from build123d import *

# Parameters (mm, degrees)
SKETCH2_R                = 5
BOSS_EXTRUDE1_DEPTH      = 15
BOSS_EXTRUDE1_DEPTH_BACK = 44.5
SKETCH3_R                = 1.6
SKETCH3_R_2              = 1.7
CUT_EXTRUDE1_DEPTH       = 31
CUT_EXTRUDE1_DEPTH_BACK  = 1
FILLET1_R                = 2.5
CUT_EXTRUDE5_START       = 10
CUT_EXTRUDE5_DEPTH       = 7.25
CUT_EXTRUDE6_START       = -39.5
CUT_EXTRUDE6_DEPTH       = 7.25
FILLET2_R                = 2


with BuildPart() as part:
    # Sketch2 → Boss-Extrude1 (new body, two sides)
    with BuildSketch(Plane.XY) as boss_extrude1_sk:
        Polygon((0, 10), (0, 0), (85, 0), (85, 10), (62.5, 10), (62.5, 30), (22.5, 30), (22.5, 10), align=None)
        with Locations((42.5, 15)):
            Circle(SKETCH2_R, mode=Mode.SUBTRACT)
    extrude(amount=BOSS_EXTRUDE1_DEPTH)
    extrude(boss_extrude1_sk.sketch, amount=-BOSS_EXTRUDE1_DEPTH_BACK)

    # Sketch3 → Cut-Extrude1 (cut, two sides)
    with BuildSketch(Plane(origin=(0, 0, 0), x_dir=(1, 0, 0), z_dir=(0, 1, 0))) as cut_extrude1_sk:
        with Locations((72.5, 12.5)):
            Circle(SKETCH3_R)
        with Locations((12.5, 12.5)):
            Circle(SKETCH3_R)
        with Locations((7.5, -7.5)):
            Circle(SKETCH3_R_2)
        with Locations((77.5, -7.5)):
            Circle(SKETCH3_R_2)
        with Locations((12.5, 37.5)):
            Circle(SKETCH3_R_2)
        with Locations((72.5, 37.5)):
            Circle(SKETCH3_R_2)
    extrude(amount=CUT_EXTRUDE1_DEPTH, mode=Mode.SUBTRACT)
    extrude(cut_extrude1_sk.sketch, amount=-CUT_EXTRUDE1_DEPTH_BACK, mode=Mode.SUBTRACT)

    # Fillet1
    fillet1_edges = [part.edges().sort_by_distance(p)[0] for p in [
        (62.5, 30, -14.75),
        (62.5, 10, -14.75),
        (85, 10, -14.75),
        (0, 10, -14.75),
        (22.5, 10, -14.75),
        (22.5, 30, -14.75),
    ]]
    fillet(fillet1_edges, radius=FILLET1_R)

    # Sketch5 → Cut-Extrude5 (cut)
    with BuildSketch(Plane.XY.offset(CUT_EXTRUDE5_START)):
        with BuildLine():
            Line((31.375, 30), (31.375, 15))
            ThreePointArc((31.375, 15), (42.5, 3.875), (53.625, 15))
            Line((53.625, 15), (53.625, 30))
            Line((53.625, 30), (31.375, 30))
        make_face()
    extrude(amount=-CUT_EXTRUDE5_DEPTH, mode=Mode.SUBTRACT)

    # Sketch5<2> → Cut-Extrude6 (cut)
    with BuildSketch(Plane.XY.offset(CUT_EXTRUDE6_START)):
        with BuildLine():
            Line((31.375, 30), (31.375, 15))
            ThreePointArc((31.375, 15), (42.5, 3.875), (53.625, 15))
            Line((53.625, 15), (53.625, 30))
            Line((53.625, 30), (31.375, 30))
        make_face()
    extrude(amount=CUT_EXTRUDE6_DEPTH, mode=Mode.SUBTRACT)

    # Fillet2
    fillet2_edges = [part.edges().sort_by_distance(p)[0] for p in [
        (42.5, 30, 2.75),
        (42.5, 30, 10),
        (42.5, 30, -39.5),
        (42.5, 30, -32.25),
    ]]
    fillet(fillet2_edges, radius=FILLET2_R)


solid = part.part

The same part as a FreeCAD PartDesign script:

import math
import FreeCAD as App
import Part
import Sketcher


def edges_at(feature, points):
    """Names of the edges that pass closest to the given points."""
    edges = feature.Shape.Edges
    near = lambda p: min(range(len(edges)), key=lambda i: edges[i].distToShape(Part.Vertex(*p))[0])
    return sorted({f"Edge{near(p) + 1}" for p in points})

doc = App.newDocument("Part")
body = doc.addObject("PartDesign::Body", "Body")

sketch1 = body.newObject("Sketcher::SketchObject", "Sketch")
sketch1.AttachmentSupport = (doc.getObject("XY_Plane"), [""])
sketch1.MapMode = "FlatFace"
sketch1.addGeometry([
    Part.LineSegment(App.Vector(0, 10, 0), App.Vector(0, 0, 0)),
    Part.LineSegment(App.Vector(0, 0, 0), App.Vector(85, 0, 0)),
    Part.LineSegment(App.Vector(85, 0, 0), App.Vector(85, 10, 0)),
    Part.LineSegment(App.Vector(85, 10, 0), App.Vector(62.5, 10, 0)),
    Part.LineSegment(App.Vector(62.5, 10, 0), App.Vector(62.5, 30, 0)),
    Part.LineSegment(App.Vector(62.5, 30, 0), App.Vector(22.5, 30, 0)),
    Part.LineSegment(App.Vector(22.5, 30, 0), App.Vector(22.5, 10, 0)),
    Part.LineSegment(App.Vector(22.5, 10, 0), App.Vector(0, 10, 0)),
    Part.Circle(App.Vector(42.5, 15, 0), App.Vector(0, 0, 1), 5),
], False)
sketch1.addConstraint([
    Sketcher.Constraint("Coincident", 0, 2, 1, 1),
    Sketcher.Constraint("Coincident", 1, 2, 2, 1),
    Sketcher.Constraint("Coincident", 2, 2, 3, 1),
    Sketcher.Constraint("Coincident", 3, 2, 4, 1),
    Sketcher.Constraint("Coincident", 4, 2, 5, 1),
    Sketcher.Constraint("Coincident", 5, 2, 6, 1),
    Sketcher.Constraint("Coincident", 6, 2, 7, 1),
    Sketcher.Constraint("Coincident", 7, 2, 0, 1),
    Sketcher.Constraint("Vertical", 0),
    Sketcher.Constraint("Horizontal", 1),
    Sketcher.Constraint("Vertical", 2),
    Sketcher.Constraint("Horizontal", 3),
    Sketcher.Constraint("Vertical", 4),
    Sketcher.Constraint("Horizontal", 5),
    Sketcher.Constraint("Vertical", 6),
    Sketcher.Constraint("Horizontal", 7),
    Sketcher.Constraint("Coincident", 0, 2, -1, 1),
    Sketcher.Constraint("Horizontal", 3, 2, 6, 2),
    Sketcher.Constraint("Equal", 3, 7),
    Sketcher.Constraint("Diameter", 8, 10.0),
    Sketcher.Constraint("DistanceX", 1, 1, 1, 2, 85.0),
    Sketcher.Constraint("DistanceX", 5, 2, 5, 1, 40.0),
    Sketcher.Constraint("DistanceY", 0, 2, 0, 1, 10.0),
    Sketcher.Constraint("DistanceY", 4, 1, 4, 2, 20.0),
    Sketcher.Constraint("DistanceY", -1, 1, 8, 3, 15.0),
    Sketcher.Constraint("DistanceX", 8, 3, 3, 2, 20.0),
])
pad1 = body.newObject("PartDesign::Pad", "Pad")
pad1.Profile = sketch1
pad1.Type = "TwoLengths"
pad1.Length = 15
pad1.Length2 = 44.5

sketch2 = body.newObject("Sketcher::SketchObject", "Sketch001")
sketch2.AttachmentSupport = (doc.getObject("XZ_Plane"), [""])
sketch2.MapMode = "FlatFace"
sketch2.addGeometry([
    Part.Circle(App.Vector(72.5, -12.5, 0), App.Vector(0, 0, 1), 1.6),
    Part.Circle(App.Vector(12.5, -12.5, 0), App.Vector(0, 0, 1), 1.6),
    Part.Circle(App.Vector(7.5, 7.5, 0), App.Vector(0, 0, 1), 1.7),
    Part.Circle(App.Vector(77.5, 7.5, 0), App.Vector(0, 0, 1), 1.7),
    Part.Circle(App.Vector(12.5, -37.5, 0), App.Vector(0, 0, 1), 1.7),
    Part.Circle(App.Vector(72.5, -37.5, 0), App.Vector(0, 0, 1), 1.7),
], False)
sketch2.addConstraint([
    Sketcher.Constraint("Equal", 0, 1),
    Sketcher.Constraint("Equal", 2, 3),
    Sketcher.Constraint("Equal", 3, 4),
    Sketcher.Constraint("Equal", 4, 5),
    Sketcher.Constraint("Horizontal", 0, 3, 1, 3),
    Sketcher.Constraint("Horizontal", 2, 3, 3, 3),
    Sketcher.Constraint("Horizontal", 4, 3, 5, 3),
    Sketcher.Constraint("Vertical", 1, 3, 4, 3),
    Sketcher.Constraint("Vertical", 0, 3, 5, 3),
    Sketcher.Constraint("Diameter", 0, 3.2),
    Sketcher.Constraint("Diameter", 2, 3.4),
    Sketcher.Constraint("DistanceX", 1, 3, 0, 3, 60.0),
    Sketcher.Constraint("DistanceX", 2, 3, 1, 3, 5.0),
    Sketcher.Constraint("DistanceY", 1, 3, 2, 3, 20.0),
    Sketcher.Constraint("DistanceX", 0, 3, 3, 3, 5.0),
    Sketcher.Constraint("DistanceY", 4, 3, 1, 3, 25.0),
    Sketcher.Constraint("DistanceX", -1, 1, 0, 3, 72.5),
    Sketcher.Constraint("DistanceY", 0, 3, -1, 1, 12.5),
])
pocket1 = body.newObject("PartDesign::Pocket", "Pocket")
pocket1.Profile = sketch2
pocket1.Type = "ThroughAll"
pocket1.Midplane = True
doc.recompute()

fillet = body.newObject("PartDesign::Fillet", "Fillet")
fillet.Base = (pocket1, edges_at(pocket1, [
    (62.5, 30, -14.75),
    (62.5, 10, -14.75),
    (85, 10, -14.75),
    (0, 10, -14.75),
    (22.5, 10, -14.75),
    (22.5, 30, -14.75),
]))
fillet.Radius = 2.5

sketch3 = body.newObject("Sketcher::SketchObject", "Sketch002")
sketch3.AttachmentSupport = (doc.getObject("XY_Plane"), [""])
sketch3.MapMode = "FlatFace"
sketch3.AttachmentOffset = App.Placement(App.Vector(0, 0, 10), App.Rotation())
sketch3.addGeometry([
    Part.LineSegment(App.Vector(31.375, 30, 0), App.Vector(31.375, 15, 0)),
    Part.ArcOfCircle(Part.Circle(App.Vector(42.5, 15, 0), App.Vector(0, 0, 1), 11.125), math.radians(180), math.radians(360)),
    Part.LineSegment(App.Vector(53.625, 15, 0), App.Vector(53.625, 30, 0)),
    Part.LineSegment(App.Vector(53.625, 30, 0), App.Vector(31.375, 30, 0)),
], False)
sketch3.addConstraint([
    Sketcher.Constraint("Tangent", 0, 2, 1, 1),
    Sketcher.Constraint("Tangent", 1, 2, 2, 1),
    Sketcher.Constraint("Coincident", 2, 2, 3, 1),
    Sketcher.Constraint("Coincident", 3, 2, 0, 1),
    Sketcher.Constraint("Vertical", 0),
    Sketcher.Constraint("Vertical", 2),
    Sketcher.Constraint("Horizontal", 3),
    Sketcher.Constraint("DistanceY", 0, 2, 0, 1, 15.0),
    Sketcher.Constraint("DistanceY", -1, 1, 1, 3, 15.0),
    Sketcher.Constraint("Radius", 1, 11.125),
    Sketcher.Constraint("DistanceX", -1, 1, 1, 3, 42.5),
])
pocket2 = body.newObject("PartDesign::Pocket", "Pocket001")
pocket2.Profile = sketch3
pocket2.Length = 7.25

sketch4 = body.newObject("Sketcher::SketchObject", "Sketch003")
sketch4.AttachmentSupport = (doc.getObject("XY_Plane"), [""])
sketch4.MapMode = "FlatFace"
sketch4.AttachmentOffset = App.Placement(App.Vector(0, 0, -39.5), App.Rotation())
sketch4.addGeometry([
    Part.LineSegment(App.Vector(31.375, 30, 0), App.Vector(31.375, 15, 0)),
    Part.ArcOfCircle(Part.Circle(App.Vector(42.5, 15, 0), App.Vector(0, 0, 1), 11.125), math.radians(180), math.radians(360)),
    Part.LineSegment(App.Vector(53.625, 15, 0), App.Vector(53.625, 30, 0)),
    Part.LineSegment(App.Vector(53.625, 30, 0), App.Vector(31.375, 30, 0)),
], False)
sketch4.addConstraint([
    Sketcher.Constraint("Tangent", 0, 2, 1, 1),
    Sketcher.Constraint("Tangent", 1, 2, 2, 1),
    Sketcher.Constraint("Coincident", 2, 2, 3, 1),
    Sketcher.Constraint("Coincident", 3, 2, 0, 1),
    Sketcher.Constraint("Vertical", 0),
    Sketcher.Constraint("Vertical", 2),
    Sketcher.Constraint("Horizontal", 3),
    Sketcher.Constraint("DistanceY", 0, 2, 0, 1, 15.0),
    Sketcher.Constraint("DistanceY", -1, 1, 1, 3, 15.0),
    Sketcher.Constraint("Radius", 1, 11.125),
    Sketcher.Constraint("DistanceX", -1, 1, 1, 3, 42.5),
])
pocket3 = body.newObject("PartDesign::Pocket", "Pocket002")
pocket3.Profile = sketch4
pocket3.Length = 7.25
pocket3.Reversed = True
doc.recompute()

fillet2 = body.newObject("PartDesign::Fillet", "Fillet001")
fillet2.Base = (pocket3, edges_at(pocket3, [
    (42.5, 30, 2.75),
    (42.5, 30, 10),
    (42.5, 30, -39.5),
    (42.5, 30, -32.25),
]))
fillet2.Radius = 2

doc.recompute()
